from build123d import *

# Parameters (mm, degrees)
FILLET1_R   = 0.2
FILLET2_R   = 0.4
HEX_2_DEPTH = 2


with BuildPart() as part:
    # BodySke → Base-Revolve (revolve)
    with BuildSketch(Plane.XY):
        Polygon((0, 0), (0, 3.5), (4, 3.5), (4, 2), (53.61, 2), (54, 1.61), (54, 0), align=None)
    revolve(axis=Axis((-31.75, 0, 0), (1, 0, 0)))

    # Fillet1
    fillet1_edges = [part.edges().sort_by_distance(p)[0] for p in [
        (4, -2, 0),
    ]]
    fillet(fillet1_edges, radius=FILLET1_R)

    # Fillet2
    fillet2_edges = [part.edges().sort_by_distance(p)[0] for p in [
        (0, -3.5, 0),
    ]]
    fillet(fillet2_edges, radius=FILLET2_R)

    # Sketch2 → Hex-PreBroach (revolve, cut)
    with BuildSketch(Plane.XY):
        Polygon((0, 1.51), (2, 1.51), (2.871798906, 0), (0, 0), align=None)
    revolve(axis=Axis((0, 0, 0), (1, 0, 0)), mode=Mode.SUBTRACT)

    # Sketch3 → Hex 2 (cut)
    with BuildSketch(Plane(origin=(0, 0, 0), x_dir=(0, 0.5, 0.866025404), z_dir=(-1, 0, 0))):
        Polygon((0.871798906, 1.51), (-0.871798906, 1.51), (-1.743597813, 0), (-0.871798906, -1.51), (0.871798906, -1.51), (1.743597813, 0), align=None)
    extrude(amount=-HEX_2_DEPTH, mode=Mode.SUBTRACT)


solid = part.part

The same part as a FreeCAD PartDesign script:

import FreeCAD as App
import Part
import Sketcher
from FreeCAD import Vector
Q = App.Units.Quantity


def edges_at(feature, points):
    """Names of the edges that pass closest to the given points."""
    edges = feature.Shape.Edges
    near = lambda p: min(range(len(edges)), key=lambda i: edges[i].distToShape(Part.Vertex(*p))[0])
    return sorted({f"Edge{near(p) + 1}" for p in points})


def add_polygon(sketch, points):
    """Adds a closed chain of lines whose ends are joined by coincident constraints."""
    first, n = sketch.GeometryCount, len(points)
    for a, b in zip(points, points[1:] + points[:1]):
        sketch.addGeometry(Part.LineSegment(App.Vector(*a, 0), App.Vector(*b, 0)), False)
    for i in range(n):
        sketch.addConstraint(Sketcher.Constraint("Coincident", first + i, 2, first + (i + 1) % n, 1))

doc = App.newDocument("Part")
body = doc.addObject("PartDesign::Body", "Body")

# Sketch on XY plane
sketch1 = doc.addObject("Sketcher::SketchObject", "Sketch")
body.addObject(sketch1)
sketch1.AttachmentSupport = (doc.XY_Plane, [""])
sketch1.MapMode = "FlatFace"
add_polygon(sketch1, [(0, 3.5), (0, 0), (54, 0), (54, 1.6), (53.6, 2), (4, 2), (4, 3.5)])  # lines 0-6
sketch1.addConstraint([
    Sketcher.Constraint("Vertical", 0),
    Sketcher.Constraint("Horizontal", 1),
    Sketcher.Constraint("Vertical", 2),
    Sketcher.Constraint("Horizontal", 4),
    Sketcher.Constraint("Vertical", 5),
    Sketcher.Constraint("Horizontal", 6),
    Sketcher.Constraint("Coincident", 0, 2, -1, 1),
    Sketcher.Constraint("DistanceX", 1, 1, 1, 2, 54.0),
    Sketcher.Constraint("DistanceX", 6, 2, 6, 1, 4.0),
    Sketcher.Constraint("Angle", 3, Q("135 deg")),
    Sketcher.Constraint("DistanceY", 0, 2, 0, 1, 3.5),
    Sketcher.Constraint("DistanceY", 5, 1, 5, 2, 1.5),
    Sketcher.Constraint("DistanceX", 4, 2, 4, 1, 49.61),
])
revolution = doc.addObject("PartDesign::Revolution", "Revolution")
body.addObject(revolution)
revolution.Profile = sketch1
revolution.ReferenceAxis = (sketch1, ["H_Axis"])
revolution.Angle = 360
doc.recompute()

fillet = doc.addObject("PartDesign::Fillet", "Fillet")
body.addObject(fillet)
fillet.Base = (revolution, edges_at(revolution, [(4, -2, 0)]))
fillet.Radius = 0.2
doc.recompute()

fillet2 = doc.addObject("PartDesign::Fillet", "Fillet001")
body.addObject(fillet2)
fillet2.Base = (fillet, edges_at(fillet, [(0, -3.5, 0)]))
fillet2.Radius = 0.4

# Sketch on XY plane
sketch2 = doc.addObject("Sketcher::SketchObject", "Sketch001")
body.addObject(sketch2)
sketch2.AttachmentSupport = (doc.XY_Plane, [""])
sketch2.MapMode = "FlatFace"
add_polygon(sketch2, [(2, 1.5), (0, 1.5), (0, 0), (2.9, 0)])  # lines 0-3
sketch2.addConstraint([
    Sketcher.Constraint("Horizontal", 0),
    Sketcher.Constraint("Vertical", 1),
    Sketcher.Constraint("Horizontal", 2),
    Sketcher.Constraint("Coincident", 1, 2, -1, 1),
    Sketcher.Constraint("DistanceX", 0, 2, 0, 1, 2.0),
    Sketcher.Constraint("Angle", 3, Q("120 deg")),
    Sketcher.Constraint("DistanceY", 1, 2, 1, 1, 1.51),
])
groove = doc.addObject("PartDesign::Groove", "Groove")
body.addObject(groove)
groove.Profile = sketch2
groove.ReferenceAxis = (sketch2, ["H_Axis"])
groove.Angle = 360

# Sketch on YZ plane
sketch3 = doc.addObject("Sketcher::SketchObject", "Sketch002")
body.addObject(sketch3)
sketch3.AttachmentSupport = (doc.YZ_Plane, [""])
sketch3.MapMode = "FlatFace"
add_polygon(sketch3, [(1.7, 0), (0.9, -1.5), (-0.9, -1.5), (-1.7, 0), (-0.9, 1.5), (0.9, 1.5)])  # lines 0-5
sketch3.addConstraint([
    Sketcher.Constraint("Horizontal", 1),
    Sketcher.Constraint("Horizontal", 4),
    Sketcher.Constraint("Symmetric", 0, 2, 3, 2, -1, 1),
    Sketcher.Constraint("Symmetric", 2, 2, 5, 2, -1, 1),
    Sketcher.Constraint("PointOnObject", 2, 2, -1),
    Sketcher.Constraint("Parallel", 2, 5),
    Sketcher.Constraint("Vertical", 1, 2, 3, 2),
    Sketcher.Constraint("Angle", 0, Q("-120 deg")),
    Sketcher.Constraint("DistanceY", 0, 2, -1, 1, 1.51),
    Sketcher.Constraint("DistanceX", -1, 1, 0, 2, 0.871799),
])
pocket1 = doc.addObject("PartDesign::Pocket", "Pocket")
body.addObject(pocket1)
pocket1.Profile = sketch3
pocket1.Length = 2
pocket1.Reversed = True

doc.recompute()
